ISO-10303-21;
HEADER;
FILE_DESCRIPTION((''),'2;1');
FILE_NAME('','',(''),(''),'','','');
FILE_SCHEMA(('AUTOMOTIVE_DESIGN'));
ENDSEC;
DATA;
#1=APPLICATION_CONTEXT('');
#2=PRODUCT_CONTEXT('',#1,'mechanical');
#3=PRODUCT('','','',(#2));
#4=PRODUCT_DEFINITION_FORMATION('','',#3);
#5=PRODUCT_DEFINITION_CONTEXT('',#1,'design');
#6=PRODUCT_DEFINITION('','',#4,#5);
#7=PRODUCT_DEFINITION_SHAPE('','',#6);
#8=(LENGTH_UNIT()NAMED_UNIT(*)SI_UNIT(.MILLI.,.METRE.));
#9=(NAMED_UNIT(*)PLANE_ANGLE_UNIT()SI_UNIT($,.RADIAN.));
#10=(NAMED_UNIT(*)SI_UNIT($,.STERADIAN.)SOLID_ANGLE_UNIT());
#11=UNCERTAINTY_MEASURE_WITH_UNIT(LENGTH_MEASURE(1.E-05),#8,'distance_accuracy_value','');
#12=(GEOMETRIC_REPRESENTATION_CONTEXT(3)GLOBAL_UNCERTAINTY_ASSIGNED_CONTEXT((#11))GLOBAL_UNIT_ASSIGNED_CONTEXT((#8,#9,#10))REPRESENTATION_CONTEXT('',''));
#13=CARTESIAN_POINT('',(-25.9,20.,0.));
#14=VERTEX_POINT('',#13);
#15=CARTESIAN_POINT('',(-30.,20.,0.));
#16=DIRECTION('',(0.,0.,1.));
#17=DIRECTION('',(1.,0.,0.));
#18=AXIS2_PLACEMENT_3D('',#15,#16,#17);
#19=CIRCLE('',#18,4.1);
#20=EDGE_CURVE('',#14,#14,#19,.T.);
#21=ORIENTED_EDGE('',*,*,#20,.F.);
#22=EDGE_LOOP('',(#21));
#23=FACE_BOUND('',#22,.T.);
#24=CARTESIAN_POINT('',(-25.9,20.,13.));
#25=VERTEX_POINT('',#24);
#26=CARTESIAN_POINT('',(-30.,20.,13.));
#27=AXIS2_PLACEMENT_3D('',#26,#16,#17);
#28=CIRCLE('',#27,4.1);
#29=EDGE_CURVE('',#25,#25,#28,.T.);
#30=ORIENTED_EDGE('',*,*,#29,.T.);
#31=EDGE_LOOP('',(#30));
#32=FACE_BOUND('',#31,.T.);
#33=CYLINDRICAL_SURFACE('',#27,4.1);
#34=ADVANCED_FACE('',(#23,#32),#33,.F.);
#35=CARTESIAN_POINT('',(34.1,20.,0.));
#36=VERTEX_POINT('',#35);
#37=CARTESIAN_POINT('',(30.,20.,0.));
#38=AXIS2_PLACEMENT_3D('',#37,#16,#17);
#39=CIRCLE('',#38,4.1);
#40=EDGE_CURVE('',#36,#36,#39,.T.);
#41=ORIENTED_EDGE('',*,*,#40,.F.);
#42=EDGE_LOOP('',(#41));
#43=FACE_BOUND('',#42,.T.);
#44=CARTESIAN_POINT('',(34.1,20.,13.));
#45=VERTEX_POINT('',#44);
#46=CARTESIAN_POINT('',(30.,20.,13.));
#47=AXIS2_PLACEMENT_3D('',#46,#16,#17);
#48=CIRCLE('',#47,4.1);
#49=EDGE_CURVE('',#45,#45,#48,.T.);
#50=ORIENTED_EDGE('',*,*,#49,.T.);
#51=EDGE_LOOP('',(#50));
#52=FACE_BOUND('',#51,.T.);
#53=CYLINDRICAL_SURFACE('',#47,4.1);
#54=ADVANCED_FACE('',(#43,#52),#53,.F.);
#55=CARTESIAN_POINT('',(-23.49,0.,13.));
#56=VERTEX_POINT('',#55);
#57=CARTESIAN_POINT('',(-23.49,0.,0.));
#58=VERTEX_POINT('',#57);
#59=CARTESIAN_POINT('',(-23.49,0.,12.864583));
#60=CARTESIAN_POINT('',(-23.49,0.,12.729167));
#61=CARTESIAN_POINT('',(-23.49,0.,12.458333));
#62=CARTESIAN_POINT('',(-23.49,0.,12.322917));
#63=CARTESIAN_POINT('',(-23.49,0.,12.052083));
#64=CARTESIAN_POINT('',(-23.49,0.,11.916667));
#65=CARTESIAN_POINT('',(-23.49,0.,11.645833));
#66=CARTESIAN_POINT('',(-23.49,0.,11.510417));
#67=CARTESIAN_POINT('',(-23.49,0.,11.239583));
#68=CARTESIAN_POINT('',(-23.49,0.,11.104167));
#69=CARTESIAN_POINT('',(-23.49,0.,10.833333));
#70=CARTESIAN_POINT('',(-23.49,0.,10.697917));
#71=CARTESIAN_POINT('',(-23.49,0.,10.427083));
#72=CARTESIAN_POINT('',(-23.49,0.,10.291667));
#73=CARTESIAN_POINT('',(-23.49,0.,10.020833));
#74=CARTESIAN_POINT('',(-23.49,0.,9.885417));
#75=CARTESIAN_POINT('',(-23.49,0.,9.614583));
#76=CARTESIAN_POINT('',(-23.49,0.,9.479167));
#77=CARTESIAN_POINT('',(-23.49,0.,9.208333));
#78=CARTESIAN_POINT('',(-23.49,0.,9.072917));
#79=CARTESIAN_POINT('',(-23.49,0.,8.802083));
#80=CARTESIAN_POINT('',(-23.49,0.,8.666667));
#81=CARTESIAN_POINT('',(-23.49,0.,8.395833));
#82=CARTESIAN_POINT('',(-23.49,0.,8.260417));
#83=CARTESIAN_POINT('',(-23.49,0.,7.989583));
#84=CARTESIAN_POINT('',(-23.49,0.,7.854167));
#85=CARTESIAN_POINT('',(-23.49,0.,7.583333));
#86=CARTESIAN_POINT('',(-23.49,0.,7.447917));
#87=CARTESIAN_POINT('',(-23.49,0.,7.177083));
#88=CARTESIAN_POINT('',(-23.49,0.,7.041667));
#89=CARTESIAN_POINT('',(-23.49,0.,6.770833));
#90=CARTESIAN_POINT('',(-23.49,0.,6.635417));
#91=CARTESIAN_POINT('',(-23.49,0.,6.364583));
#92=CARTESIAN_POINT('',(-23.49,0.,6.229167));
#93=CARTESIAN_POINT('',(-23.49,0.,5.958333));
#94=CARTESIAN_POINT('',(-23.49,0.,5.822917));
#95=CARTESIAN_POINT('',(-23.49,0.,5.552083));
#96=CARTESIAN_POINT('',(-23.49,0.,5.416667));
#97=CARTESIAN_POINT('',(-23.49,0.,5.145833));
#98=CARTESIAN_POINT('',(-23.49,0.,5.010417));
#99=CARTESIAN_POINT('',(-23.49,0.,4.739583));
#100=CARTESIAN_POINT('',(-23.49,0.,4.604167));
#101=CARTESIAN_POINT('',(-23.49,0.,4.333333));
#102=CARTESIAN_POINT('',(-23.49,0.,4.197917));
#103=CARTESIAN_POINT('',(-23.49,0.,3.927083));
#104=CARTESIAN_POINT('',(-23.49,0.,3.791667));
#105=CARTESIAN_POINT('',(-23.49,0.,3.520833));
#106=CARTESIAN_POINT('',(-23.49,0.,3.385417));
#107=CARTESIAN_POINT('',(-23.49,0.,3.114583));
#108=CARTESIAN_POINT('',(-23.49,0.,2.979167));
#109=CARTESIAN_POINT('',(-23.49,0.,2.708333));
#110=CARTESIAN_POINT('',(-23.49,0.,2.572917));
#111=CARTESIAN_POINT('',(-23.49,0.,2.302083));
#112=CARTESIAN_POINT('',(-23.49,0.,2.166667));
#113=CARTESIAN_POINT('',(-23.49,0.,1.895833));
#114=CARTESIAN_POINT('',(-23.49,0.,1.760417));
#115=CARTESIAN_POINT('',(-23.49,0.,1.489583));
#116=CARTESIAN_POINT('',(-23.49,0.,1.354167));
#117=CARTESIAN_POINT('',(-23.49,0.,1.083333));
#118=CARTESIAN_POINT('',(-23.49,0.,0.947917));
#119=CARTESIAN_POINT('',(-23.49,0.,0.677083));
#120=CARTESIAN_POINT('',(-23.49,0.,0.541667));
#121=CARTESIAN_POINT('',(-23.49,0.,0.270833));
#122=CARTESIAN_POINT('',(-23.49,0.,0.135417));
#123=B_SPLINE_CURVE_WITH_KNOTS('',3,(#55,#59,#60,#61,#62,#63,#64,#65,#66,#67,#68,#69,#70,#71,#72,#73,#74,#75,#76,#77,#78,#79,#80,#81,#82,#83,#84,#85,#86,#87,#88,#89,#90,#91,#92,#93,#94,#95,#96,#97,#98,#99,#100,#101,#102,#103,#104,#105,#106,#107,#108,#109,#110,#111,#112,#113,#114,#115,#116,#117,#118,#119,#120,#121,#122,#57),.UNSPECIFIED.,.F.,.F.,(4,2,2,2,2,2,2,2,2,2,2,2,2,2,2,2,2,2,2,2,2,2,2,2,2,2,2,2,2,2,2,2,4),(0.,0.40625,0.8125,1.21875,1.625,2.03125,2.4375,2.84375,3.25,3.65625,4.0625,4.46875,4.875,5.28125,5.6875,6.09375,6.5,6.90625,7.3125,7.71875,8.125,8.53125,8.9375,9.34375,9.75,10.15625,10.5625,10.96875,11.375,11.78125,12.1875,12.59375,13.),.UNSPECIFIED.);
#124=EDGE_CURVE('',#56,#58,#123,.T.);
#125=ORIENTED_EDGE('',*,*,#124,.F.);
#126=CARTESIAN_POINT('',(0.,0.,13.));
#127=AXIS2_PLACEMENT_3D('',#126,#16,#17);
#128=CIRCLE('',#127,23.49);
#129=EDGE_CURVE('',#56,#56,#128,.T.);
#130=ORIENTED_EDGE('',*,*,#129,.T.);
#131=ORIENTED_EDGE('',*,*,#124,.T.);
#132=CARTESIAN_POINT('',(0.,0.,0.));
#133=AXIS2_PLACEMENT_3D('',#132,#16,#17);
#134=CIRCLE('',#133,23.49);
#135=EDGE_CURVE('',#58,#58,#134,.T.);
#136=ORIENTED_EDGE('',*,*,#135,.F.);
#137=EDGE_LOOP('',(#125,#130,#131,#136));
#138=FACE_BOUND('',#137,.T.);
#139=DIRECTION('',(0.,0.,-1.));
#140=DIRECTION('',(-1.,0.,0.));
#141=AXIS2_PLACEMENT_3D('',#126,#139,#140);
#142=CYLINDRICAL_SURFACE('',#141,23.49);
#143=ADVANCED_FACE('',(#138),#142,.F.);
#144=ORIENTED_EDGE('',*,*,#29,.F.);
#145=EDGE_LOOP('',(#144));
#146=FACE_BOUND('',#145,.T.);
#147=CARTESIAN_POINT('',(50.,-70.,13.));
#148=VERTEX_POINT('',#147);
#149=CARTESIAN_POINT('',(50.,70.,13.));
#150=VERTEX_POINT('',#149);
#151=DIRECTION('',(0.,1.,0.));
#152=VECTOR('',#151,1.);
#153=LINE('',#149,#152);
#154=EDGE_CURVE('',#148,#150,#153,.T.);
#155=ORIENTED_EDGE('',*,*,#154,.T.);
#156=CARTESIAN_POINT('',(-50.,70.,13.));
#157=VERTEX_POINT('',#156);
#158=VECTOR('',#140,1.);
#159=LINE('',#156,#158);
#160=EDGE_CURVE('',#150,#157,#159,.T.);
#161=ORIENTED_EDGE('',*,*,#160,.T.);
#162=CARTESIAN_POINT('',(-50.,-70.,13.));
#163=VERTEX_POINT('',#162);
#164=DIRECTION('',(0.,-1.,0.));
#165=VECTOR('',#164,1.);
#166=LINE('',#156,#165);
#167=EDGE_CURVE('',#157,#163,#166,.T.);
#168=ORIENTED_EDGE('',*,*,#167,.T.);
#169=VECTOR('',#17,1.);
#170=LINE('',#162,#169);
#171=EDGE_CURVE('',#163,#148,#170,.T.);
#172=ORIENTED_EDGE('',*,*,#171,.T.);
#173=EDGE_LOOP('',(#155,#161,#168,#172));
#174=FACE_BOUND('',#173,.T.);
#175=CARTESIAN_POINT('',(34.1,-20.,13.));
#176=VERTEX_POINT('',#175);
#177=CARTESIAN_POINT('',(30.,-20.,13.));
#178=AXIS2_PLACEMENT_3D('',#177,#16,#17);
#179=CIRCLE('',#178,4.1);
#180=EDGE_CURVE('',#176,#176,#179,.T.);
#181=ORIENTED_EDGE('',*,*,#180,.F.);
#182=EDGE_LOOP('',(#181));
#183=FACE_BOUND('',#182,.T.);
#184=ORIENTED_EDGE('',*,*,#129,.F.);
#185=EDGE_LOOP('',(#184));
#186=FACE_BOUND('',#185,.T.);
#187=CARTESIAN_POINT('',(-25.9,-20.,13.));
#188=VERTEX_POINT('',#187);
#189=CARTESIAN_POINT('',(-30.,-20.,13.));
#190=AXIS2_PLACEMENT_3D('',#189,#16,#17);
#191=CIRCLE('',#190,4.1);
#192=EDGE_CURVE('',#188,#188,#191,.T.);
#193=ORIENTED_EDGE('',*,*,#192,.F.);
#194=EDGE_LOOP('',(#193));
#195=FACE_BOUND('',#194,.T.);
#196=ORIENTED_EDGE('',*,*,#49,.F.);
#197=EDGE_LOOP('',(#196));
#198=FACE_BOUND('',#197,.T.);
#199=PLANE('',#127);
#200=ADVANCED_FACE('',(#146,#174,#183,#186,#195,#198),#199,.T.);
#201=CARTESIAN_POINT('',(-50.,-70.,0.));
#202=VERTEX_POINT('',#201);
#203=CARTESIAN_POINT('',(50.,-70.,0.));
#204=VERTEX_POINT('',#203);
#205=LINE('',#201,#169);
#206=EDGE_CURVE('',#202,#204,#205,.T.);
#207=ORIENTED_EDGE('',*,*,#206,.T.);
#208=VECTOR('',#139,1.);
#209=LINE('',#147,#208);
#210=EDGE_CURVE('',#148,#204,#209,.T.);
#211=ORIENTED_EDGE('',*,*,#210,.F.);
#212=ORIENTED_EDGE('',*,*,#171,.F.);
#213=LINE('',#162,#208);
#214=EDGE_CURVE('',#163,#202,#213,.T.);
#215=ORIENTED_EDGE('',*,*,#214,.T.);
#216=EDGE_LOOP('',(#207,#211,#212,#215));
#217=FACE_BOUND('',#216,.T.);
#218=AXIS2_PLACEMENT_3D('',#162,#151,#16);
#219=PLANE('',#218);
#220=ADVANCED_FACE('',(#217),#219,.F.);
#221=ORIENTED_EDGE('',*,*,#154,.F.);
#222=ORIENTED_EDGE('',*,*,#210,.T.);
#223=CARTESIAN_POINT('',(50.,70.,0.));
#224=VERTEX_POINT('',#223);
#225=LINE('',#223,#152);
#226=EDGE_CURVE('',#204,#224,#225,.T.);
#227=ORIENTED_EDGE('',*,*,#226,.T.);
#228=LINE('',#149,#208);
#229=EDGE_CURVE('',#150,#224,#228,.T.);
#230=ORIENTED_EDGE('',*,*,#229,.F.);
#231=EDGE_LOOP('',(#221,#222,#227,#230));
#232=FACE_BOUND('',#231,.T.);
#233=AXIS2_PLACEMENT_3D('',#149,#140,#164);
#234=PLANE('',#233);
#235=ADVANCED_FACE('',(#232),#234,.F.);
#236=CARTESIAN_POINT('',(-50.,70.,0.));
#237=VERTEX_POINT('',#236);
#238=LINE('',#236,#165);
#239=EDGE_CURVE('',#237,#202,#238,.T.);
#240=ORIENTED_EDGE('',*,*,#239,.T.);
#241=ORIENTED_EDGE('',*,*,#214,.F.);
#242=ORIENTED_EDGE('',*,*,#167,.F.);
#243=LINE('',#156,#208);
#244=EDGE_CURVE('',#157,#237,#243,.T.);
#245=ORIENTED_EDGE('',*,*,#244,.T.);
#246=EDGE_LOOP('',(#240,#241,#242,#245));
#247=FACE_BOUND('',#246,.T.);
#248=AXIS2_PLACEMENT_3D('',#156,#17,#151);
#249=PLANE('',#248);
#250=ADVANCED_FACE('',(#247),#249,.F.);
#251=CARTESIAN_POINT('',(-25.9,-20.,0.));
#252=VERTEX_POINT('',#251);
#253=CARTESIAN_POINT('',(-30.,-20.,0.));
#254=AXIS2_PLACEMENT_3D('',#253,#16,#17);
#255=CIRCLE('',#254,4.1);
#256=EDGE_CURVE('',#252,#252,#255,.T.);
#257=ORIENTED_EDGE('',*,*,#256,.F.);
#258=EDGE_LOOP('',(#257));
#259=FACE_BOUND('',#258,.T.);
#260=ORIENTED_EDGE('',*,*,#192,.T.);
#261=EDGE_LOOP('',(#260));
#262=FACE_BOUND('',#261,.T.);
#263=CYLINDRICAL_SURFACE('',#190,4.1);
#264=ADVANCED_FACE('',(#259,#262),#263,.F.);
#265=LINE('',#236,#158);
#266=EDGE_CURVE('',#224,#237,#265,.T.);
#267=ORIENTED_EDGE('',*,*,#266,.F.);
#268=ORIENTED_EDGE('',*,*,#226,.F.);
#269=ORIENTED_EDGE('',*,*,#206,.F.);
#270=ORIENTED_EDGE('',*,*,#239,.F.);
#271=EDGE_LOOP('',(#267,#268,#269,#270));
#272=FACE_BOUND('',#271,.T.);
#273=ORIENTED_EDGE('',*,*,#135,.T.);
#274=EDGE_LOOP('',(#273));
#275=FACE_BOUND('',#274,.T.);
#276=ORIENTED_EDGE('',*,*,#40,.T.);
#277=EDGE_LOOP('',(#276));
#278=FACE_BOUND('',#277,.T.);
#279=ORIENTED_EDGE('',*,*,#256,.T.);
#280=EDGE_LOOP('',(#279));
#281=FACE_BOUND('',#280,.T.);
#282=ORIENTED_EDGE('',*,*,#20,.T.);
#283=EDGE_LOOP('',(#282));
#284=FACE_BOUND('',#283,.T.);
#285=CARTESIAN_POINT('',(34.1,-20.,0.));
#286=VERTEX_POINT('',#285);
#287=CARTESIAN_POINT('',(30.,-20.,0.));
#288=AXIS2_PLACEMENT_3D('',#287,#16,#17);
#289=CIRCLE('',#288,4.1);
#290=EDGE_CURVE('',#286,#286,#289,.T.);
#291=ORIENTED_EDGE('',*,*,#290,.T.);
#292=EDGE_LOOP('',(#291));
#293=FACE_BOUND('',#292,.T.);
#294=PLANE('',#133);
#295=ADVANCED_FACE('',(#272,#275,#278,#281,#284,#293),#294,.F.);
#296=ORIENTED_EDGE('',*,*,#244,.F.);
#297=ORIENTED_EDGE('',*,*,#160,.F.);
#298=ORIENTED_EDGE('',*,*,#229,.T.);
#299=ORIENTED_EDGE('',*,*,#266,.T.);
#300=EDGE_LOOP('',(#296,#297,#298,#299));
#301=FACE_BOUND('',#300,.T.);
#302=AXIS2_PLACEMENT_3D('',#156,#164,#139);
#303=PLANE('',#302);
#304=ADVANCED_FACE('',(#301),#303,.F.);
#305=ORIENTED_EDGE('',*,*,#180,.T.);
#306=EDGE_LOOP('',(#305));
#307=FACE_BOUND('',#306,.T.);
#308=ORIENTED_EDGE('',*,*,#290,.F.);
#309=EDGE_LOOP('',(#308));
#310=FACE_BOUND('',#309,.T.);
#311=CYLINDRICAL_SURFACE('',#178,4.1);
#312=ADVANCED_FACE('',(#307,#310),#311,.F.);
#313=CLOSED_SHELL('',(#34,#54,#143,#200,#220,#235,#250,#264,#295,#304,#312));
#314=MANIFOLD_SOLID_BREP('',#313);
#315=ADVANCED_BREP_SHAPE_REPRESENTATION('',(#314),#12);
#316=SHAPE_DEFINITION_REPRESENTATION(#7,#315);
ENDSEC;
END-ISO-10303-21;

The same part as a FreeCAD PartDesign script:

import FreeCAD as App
import Part
import Sketcher


def add_polygon(sketch, points):
    """Adds a closed chain of lines whose ends are joined by coincident constraints."""
    first, n = sketch.GeometryCount, len(points)
    for a, b in zip(points, points[1:] + points[:1]):
        sketch.addGeometry(Part.LineSegment(App.Vector(*a, 0), App.Vector(*b, 0)), False)
    for i in range(n):
        sketch.addConstraint(Sketcher.Constraint("Coincident", first + i, 2, first + (i + 1) % n, 1))

doc = App.newDocument("Part")
body = doc.addObject("PartDesign::Body", "Body")

sketch1 = body.newObject("Sketcher::SketchObject", "Sketch")
sketch1.AttachmentSupport = (doc.getObject("XY_Plane"), [""])
sketch1.MapMode = "FlatFace"
add_polygon(sketch1, [(-50, 70), (-50, -70), (50, -70), (50, 70)])
sketch1.addGeometry(Part.Circle(App.Vector(0, 0, 0), App.Vector(0, 0, 1), 23), False)
sketch1.addConstraint([
    Sketcher.Constraint("Vertical", 0),
    Sketcher.Constraint("Horizontal", 1),
    Sketcher.Constraint("Vertical", 2),
    Sketcher.Constraint("Horizontal", 3),
    Sketcher.Constraint("Coincident", 4, 3, -1, 1),
    Sketcher.Constraint("Symmetric", 0, 2, 2, 2, -1, 1),
    Sketcher.Constraint("Diameter", 4, 46.98),
    Sketcher.Constraint("DistanceX", 1, 1, 1, 2, 100.0),
    Sketcher.Constraint("DistanceY", 0, 2, 0, 1, 140.0),
])
pad1 = body.newObject("PartDesign::Pad", "Pad")
pad1.Profile = sketch1
pad1.Length = 13

sketch2 = body.newObject("Sketcher::SketchObject", "Sketch001")
sketch2.AttachmentSupport = (doc.getObject("XY_Plane"), [""])
sketch2.MapMode = "FlatFace"
sketch2.AttachmentOffset = App.Placement(App.Vector(0, 0, 13), App.Rotation())
sketch2.addGeometry([
    Part.Circle(App.Vector(-30, 20, 0), App.Vector(0, 0, 1), 4.1),
    Part.Circle(App.Vector(30, 20, 0), App.Vector(0, 0, 1), 4.1),
    Part.Circle(App.Vector(30, -20, 0), App.Vector(0, 0, 1), 4.1),
    Part.Circle(App.Vector(-30, -20, 0), App.Vector(0, 0, 1), 4.1),
], False)
sketch2.addConstraint([
    Sketcher.Constraint("Equal", 0, 1),
    Sketcher.Constraint("Equal", 1, 2),
    Sketcher.Constraint("Equal", 2, 3),
    Sketcher.Constraint("Symmetric", 0, 3, 2, 3, -1, 1),
    Sketcher.Constraint("Symmetric", 1, 3, 3, 3, -1, 1),
    Sketcher.Constraint("Symmetric", 0, 3, 1, 3, -2),
    Sketcher.Constraint("Diameter", 0, 8.2),
    Sketcher.Constraint("DistanceX", 0, 3, -1, 1, 30.0),
    Sketcher.Constraint("DistanceY", -1, 1, 0, 3, 20.0),
])
doc.recompute()
hole = body.newObject("PartDesign::Hole", "Hole")
hole.Profile = sketch2
hole.ThreadType = "None"
hole.Diameter = 8.2
hole.DepthType = "Dimension"
hole.Depth = 19.75
hole.DrillPoint = "Angled"
hole.DrillPointAngle = 118

doc.recompute()
